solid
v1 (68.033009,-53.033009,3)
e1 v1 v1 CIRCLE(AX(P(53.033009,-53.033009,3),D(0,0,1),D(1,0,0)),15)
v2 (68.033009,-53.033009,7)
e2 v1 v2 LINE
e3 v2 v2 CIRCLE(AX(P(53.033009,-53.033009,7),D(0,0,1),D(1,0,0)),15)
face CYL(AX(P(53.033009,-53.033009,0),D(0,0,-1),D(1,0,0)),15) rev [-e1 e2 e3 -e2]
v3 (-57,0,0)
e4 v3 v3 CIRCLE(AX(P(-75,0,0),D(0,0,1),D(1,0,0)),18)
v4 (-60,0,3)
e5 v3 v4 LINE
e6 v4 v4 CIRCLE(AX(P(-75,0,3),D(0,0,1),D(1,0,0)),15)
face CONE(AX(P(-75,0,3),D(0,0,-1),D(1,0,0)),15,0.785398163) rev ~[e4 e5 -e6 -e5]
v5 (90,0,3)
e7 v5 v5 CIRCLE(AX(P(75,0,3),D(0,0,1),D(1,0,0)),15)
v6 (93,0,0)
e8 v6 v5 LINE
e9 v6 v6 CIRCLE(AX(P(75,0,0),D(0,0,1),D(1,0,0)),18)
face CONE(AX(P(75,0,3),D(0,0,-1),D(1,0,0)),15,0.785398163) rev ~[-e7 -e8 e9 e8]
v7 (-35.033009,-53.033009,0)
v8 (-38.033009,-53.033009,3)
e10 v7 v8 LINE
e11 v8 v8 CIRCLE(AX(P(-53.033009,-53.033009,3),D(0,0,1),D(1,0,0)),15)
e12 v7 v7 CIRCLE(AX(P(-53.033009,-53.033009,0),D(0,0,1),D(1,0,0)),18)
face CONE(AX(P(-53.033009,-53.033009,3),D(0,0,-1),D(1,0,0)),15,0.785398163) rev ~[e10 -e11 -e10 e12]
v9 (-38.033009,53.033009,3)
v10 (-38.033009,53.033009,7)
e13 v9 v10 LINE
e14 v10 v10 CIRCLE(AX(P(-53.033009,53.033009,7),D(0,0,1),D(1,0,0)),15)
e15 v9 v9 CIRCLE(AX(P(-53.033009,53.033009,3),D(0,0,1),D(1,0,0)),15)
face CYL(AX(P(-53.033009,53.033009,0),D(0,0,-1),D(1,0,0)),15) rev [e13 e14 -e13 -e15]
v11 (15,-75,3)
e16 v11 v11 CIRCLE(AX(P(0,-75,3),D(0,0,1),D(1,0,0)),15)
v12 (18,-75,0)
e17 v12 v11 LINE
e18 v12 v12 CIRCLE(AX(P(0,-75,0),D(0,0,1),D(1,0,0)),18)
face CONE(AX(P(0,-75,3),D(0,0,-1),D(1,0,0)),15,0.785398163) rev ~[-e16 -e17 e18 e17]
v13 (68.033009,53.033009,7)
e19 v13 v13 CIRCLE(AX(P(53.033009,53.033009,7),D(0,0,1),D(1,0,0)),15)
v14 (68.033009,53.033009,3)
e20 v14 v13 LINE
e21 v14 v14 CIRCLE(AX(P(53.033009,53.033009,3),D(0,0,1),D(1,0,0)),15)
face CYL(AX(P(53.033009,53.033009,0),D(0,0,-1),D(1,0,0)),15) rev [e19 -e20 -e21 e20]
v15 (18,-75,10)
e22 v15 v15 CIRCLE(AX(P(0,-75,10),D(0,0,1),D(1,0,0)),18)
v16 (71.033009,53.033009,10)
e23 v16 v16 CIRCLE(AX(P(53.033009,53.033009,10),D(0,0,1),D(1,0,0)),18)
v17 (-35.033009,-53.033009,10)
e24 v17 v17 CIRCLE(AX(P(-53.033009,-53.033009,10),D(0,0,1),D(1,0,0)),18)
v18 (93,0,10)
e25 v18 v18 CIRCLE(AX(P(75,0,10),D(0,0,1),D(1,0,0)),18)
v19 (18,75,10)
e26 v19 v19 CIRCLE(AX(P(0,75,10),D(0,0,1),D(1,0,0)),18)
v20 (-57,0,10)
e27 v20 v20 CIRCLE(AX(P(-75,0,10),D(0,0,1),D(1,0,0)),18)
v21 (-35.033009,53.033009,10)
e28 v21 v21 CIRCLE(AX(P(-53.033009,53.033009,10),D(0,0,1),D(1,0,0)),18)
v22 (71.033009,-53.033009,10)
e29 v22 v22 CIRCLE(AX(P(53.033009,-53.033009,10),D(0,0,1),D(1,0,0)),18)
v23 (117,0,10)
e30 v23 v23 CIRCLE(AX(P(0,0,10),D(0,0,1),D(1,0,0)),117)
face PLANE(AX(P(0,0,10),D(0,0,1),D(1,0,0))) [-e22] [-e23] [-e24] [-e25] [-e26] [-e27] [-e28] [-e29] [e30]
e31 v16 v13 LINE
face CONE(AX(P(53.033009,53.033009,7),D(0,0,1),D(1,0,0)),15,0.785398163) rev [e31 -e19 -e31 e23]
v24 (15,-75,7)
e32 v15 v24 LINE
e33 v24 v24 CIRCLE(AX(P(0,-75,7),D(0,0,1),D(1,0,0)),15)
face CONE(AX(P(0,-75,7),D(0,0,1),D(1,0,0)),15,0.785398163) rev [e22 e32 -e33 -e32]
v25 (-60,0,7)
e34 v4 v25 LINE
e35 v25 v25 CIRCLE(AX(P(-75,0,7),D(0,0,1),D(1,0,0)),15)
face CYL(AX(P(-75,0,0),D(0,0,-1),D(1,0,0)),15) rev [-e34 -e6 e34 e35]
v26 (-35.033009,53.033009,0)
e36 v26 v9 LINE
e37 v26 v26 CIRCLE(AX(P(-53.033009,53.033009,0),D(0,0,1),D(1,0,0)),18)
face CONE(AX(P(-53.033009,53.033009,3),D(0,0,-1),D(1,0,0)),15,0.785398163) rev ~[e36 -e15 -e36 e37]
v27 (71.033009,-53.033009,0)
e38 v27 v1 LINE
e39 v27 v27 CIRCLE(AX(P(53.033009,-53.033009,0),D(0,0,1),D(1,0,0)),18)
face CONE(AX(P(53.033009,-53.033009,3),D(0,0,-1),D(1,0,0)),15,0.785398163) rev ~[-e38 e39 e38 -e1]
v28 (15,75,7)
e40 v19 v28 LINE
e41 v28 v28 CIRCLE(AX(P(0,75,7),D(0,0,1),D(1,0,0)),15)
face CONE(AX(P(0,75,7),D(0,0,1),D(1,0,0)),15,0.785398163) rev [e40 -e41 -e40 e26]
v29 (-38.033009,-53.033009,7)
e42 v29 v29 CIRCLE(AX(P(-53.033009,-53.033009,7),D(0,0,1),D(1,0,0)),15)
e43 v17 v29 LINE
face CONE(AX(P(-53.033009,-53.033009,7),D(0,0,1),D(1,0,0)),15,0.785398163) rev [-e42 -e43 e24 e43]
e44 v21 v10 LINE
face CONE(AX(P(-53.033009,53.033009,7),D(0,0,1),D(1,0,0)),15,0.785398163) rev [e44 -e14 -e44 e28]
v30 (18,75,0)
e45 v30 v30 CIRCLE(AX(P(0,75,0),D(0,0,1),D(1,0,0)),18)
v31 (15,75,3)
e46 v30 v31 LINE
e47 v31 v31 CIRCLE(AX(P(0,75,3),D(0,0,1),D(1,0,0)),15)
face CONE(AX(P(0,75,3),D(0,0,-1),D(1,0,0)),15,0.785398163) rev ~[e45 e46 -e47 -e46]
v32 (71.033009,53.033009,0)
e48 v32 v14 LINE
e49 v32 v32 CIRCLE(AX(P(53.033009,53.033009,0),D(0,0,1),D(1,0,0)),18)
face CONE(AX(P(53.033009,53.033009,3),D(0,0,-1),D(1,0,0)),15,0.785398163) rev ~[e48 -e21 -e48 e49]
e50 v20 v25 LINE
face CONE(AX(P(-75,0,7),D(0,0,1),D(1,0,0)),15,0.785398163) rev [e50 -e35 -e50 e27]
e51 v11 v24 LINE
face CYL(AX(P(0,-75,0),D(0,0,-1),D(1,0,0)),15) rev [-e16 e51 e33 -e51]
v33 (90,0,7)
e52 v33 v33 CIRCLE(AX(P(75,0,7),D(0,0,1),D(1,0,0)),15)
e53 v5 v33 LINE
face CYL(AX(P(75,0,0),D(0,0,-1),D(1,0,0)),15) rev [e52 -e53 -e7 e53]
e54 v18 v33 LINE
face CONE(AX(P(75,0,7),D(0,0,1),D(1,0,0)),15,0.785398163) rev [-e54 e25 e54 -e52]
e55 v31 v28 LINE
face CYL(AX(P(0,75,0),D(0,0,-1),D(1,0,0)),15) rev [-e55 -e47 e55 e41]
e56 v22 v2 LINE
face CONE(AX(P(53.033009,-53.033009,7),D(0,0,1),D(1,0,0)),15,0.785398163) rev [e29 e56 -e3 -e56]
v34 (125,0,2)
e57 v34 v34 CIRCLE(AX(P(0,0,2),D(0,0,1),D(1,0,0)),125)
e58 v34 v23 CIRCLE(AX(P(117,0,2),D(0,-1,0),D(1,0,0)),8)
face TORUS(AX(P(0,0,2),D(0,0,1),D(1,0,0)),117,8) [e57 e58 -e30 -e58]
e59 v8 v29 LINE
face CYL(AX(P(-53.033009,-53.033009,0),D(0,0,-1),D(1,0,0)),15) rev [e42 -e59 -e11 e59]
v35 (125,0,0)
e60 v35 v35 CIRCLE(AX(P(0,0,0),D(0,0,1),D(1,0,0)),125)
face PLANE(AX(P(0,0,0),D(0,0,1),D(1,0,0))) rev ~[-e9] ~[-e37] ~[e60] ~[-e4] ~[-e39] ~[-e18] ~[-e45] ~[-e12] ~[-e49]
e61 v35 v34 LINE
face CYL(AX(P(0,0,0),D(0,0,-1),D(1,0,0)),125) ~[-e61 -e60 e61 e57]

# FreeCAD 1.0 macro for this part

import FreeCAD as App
import Part
import Sketcher
from FreeCAD import Vector
Q = App.Units.Quantity


def edges_at(feature, points):
    """Names of the edges that pass closest to the given points."""
    edges = feature.Shape.Edges
    near = lambda p: min(range(len(edges)), key=lambda i: edges[i].distToShape(Part.Vertex(*p))[0])
    return sorted({f"Edge{near(p) + 1}" for p in points})

doc = App.newDocument("Part")
body = doc.addObject("PartDesign::Body", "Body")

sketch1 = body.newObject("Sketcher::SketchObject", "Sketch")
sketch1.AttachmentSupport = (doc.getObject("XY_Plane"), [""])
sketch1.MapMode = "FlatFace"
sketch1.addGeometry([
    Part.Circle(Vector(0, 0, 0), Vector(0, 0, 1), 125),
    Part.Circle(Vector(-53, -53, 0), Vector(0, 0, 1), 15),
    Part.Circle(Vector(0, -75, 0), Vector(0, 0, 1), 15),
    Part.Circle(Vector(53, -53, 0), Vector(0, 0, 1), 15),
    Part.Circle(Vector(-75, 0, 0), Vector(0, 0, 1), 15),
    Part.Circle(Vector(-53, 53, 0), Vector(0, 0, 1), 15),
    Part.Circle(Vector(75, 0, 0), Vector(0, 0, 1), 15),
    Part.Circle(Vector(0, 75, 0), Vector(0, 0, 1), 15),
    Part.Circle(Vector(53, 53, 0), Vector(0, 0, 1), 15),
], False)
sketch1.addConstraint([
    Sketcher.Constraint("Coincident", 0, 3, -1, 1),
    Sketcher.Constraint("Equal", 1, 2),
    Sketcher.Constraint("Equal", 2, 3),
    Sketcher.Constraint("Equal", 3, 4),
    Sketcher.Constraint("Equal", 4, 5),
    Sketcher.Constraint("Equal", 5, 6),
    Sketcher.Constraint("Equal", 6, 7),
    Sketcher.Constraint("Equal", 7, 8),
    Sketcher.Constraint("Symmetric", 3, 3, 5, 3, -1, 1),
    Sketcher.Constraint("Symmetric", 4, 3, 6, 3, -1, 1),
    Sketcher.Constraint("Symmetric", 2, 3, 7, 3, -1, 1),
    Sketcher.Constraint("Symmetric", 1, 3, 8, 3, -1, 1),
    Sketcher.Constraint("Symmetric", 1, 3, 3, 3, -2),
    Sketcher.Constraint("PointOnObject", 2, 3, -2),
    Sketcher.Constraint("PointOnObject", 4, 3, -1),
    Sketcher.Constraint("Diameter", 0, Q("250 mm")),
    Sketcher.Constraint("Diameter", 1, Q("30 mm")),
    Sketcher.Constraint("DistanceY", 2, 3, -1, 1, Q("75 mm")),
    Sketcher.Constraint("DistanceX", 4, 3, -1, 1, Q("75 mm")),
    Sketcher.Constraint("DistanceX", 1, 3, -1, 1, Q("53.033009 mm")),
    Sketcher.Constraint("DistanceY", 1, 3, -1, 1, Q("53.033009 mm")),
])
pad1 = body.newObject("PartDesign::Pad", "Pad")
pad1.Profile = sketch1
pad1.Length = 10
doc.recompute()

fillet = body.newObject("PartDesign::Fillet", "Fillet")
fillet.Base = (pad1, edges_at(pad1, [(-125, 0, 10)]))
fillet.Radius = 8
doc.recompute()

chamfer = body.newObject("PartDesign::Chamfer", "Chamfer")
chamfer.Base = (fillet, edges_at(fillet, [
    (-68.033, -53.033, 10),
    (-90, 0, 10),
    (-68.033, 53.033, 10),
    (-15, 75, 10),
    (38.033, 53.033, 10),
    (60, 0, 10),
    (38.033, -53.033, 10),
    (-15, -75, 10),
    (38.033, -53.033, 0),
    (60, 0, 0),
    (38.033, 53.033, 0),
    (-15, 75, 0),
    (-68.033, 53.033, 0),
    (-90, 0, 0),
    (-68.033, -53.033, 0),
    (-15, -75, 0),
]))
chamfer.Size = 3

doc.recompute()
